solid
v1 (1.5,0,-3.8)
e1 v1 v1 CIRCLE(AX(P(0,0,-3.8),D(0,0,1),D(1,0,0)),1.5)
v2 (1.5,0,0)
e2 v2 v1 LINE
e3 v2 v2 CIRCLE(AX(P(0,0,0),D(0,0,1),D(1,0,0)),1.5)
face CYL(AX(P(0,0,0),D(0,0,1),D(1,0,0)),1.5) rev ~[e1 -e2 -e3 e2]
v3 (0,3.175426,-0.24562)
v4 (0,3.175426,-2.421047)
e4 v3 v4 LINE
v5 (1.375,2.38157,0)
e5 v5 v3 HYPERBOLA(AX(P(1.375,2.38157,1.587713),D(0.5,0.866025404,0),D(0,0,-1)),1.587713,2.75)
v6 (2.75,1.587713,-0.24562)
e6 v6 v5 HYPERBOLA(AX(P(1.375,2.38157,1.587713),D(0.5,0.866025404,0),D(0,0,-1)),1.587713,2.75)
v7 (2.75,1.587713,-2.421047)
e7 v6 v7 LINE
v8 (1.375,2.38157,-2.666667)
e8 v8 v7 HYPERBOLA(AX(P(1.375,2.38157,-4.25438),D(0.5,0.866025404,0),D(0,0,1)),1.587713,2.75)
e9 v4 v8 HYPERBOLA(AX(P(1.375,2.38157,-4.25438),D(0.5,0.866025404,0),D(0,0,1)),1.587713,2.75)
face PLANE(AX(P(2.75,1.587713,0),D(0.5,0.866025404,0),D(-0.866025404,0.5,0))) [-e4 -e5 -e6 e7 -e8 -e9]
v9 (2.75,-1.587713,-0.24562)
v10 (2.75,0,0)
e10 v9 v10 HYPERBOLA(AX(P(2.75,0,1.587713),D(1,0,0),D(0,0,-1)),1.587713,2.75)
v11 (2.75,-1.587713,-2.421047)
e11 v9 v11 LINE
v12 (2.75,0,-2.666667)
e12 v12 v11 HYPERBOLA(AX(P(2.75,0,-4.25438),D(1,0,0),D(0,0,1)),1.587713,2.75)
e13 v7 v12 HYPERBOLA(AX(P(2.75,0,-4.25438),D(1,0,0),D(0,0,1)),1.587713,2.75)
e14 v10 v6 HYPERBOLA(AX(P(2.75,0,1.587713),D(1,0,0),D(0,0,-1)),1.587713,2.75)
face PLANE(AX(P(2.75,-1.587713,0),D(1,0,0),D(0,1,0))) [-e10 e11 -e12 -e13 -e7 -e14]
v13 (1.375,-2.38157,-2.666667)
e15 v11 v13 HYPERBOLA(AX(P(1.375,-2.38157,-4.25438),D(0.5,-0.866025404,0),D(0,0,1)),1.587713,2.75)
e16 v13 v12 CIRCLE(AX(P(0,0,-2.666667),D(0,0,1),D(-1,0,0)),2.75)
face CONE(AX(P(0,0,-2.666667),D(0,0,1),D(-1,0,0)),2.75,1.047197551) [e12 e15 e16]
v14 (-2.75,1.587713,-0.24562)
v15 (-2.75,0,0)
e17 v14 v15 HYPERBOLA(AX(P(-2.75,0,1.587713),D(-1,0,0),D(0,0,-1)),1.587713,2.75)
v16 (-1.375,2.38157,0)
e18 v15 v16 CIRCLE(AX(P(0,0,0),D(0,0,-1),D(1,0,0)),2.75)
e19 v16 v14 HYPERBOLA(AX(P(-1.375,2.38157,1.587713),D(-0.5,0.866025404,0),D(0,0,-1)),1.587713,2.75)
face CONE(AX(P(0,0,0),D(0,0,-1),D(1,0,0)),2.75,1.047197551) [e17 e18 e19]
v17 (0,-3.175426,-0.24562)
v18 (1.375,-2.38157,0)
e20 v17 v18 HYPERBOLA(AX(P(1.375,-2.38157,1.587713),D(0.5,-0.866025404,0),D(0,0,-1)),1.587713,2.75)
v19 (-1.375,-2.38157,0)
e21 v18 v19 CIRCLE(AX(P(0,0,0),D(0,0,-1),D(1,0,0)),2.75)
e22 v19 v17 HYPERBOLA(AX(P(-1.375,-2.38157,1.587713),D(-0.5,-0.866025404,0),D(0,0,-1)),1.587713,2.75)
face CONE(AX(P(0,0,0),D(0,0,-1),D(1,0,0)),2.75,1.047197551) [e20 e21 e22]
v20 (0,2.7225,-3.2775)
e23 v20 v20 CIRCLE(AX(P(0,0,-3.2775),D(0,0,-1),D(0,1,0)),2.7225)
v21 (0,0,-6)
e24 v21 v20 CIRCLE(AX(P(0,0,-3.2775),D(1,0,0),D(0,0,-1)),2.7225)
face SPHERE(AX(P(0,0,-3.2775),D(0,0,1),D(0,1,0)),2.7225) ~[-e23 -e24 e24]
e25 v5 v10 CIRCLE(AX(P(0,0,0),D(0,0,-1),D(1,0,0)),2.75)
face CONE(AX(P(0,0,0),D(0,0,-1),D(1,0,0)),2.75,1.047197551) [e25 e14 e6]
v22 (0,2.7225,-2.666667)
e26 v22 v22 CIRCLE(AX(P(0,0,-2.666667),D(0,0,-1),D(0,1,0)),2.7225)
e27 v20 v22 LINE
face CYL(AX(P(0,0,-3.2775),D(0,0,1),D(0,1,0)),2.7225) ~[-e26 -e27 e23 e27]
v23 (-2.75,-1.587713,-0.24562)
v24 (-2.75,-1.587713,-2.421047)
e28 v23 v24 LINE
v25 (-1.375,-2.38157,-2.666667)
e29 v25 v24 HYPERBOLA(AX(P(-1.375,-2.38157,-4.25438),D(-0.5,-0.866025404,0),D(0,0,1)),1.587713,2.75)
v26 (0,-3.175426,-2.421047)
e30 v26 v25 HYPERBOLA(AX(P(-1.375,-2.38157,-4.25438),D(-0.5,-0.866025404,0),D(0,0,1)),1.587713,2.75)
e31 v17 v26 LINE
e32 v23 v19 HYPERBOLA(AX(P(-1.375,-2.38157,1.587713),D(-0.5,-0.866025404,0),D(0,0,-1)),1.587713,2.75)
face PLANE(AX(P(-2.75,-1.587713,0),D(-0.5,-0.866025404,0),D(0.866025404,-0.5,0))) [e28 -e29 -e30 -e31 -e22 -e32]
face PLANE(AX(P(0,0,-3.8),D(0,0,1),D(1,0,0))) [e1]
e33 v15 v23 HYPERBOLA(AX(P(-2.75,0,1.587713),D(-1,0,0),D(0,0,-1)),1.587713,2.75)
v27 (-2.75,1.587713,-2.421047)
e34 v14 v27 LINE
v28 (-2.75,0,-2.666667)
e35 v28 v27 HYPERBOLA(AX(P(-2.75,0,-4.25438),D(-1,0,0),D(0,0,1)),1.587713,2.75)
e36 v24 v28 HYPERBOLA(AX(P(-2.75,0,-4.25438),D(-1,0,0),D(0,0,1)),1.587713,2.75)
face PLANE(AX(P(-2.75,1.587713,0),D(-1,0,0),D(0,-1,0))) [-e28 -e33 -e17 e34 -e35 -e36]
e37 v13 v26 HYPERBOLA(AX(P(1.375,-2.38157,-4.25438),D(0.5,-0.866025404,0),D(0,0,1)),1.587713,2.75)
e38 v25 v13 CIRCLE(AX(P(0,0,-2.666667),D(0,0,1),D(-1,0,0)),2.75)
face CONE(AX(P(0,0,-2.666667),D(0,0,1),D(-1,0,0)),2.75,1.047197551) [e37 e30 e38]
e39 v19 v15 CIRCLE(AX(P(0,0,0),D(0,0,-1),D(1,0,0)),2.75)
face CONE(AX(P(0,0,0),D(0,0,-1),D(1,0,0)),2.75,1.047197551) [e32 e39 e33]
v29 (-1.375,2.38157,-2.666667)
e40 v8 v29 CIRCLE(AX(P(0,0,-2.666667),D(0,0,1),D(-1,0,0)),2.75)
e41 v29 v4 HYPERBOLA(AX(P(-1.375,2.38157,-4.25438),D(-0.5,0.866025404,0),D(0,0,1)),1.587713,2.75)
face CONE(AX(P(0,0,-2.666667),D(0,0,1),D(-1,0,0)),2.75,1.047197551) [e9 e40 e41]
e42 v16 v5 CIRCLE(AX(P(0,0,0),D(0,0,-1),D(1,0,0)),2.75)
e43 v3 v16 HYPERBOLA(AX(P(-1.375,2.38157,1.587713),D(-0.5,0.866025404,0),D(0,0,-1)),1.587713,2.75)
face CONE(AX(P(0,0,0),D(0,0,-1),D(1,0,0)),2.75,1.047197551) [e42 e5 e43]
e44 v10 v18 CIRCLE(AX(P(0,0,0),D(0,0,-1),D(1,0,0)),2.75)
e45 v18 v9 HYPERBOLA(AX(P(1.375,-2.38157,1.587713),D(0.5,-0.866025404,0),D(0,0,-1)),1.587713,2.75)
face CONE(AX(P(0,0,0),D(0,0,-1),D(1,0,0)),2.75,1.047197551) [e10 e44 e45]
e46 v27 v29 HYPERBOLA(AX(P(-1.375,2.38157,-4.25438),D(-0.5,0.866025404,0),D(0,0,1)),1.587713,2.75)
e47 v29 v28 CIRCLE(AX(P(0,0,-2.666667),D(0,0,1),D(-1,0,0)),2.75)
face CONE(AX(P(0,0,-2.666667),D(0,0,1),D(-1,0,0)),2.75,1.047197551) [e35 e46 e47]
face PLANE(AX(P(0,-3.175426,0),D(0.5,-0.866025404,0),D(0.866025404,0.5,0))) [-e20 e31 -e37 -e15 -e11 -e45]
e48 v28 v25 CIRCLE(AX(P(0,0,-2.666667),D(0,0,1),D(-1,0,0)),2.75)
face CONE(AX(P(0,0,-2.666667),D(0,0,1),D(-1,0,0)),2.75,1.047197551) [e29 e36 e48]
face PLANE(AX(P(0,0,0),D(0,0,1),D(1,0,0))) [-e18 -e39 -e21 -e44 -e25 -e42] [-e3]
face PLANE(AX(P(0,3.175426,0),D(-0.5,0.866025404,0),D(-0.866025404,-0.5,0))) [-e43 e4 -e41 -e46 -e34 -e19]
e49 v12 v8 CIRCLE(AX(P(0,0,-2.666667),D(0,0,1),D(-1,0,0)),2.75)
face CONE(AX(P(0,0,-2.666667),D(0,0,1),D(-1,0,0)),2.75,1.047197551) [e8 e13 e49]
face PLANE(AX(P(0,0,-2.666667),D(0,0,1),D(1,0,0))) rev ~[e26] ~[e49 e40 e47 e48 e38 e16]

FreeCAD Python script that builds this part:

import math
import FreeCAD as App
import Part
import Sketcher
Q = App.Units.Quantity

doc = App.newDocument("Part")
body = doc.addObject("PartDesign::Body", "Body")

# Sketch on XY plane
sketch1 = doc.addObject("Sketcher::SketchObject", "Sketch")
body.addObject(sketch1)
sketch1.AttachmentSupport = (doc.XY_Plane, [""])
sketch1.MapMode = "FlatFace"
sketch1.addGeometry([
    Part.LineSegment(App.Vector(0, 3.175426, 0), App.Vector(-2.75, 1.587713, 0)),  # 0
    Part.LineSegment(App.Vector(-2.75, 1.587713, 0), App.Vector(-2.75, -1.587713, 0)),  # 1
    Part.LineSegment(App.Vector(-2.75, -1.587713, 0), App.Vector(0, -3.175426, 0)),  # 2
    Part.LineSegment(App.Vector(0, -3.175426, 0), App.Vector(2.75, -1.587713, 0)),  # 3
    Part.LineSegment(App.Vector(2.75, -1.587713, 0), App.Vector(2.75, 1.587713, 0)),  # 4
    Part.LineSegment(App.Vector(2.75, 1.587713, 0), App.Vector(0, 3.175426, 0)),  # 5
], False)
sketch1.addConstraint([
    Sketcher.Constraint("Coincident", 0, 2, 1, 1),
    Sketcher.Constraint("Coincident", 1, 2, 2, 1),
    Sketcher.Constraint("Coincident", 2, 2, 3, 1),
    Sketcher.Constraint("Coincident", 3, 2, 4, 1),
    Sketcher.Constraint("Coincident", 4, 2, 5, 1),
    Sketcher.Constraint("Coincident", 5, 2, 0, 1),
    Sketcher.Constraint("Vertical", 1),
    Sketcher.Constraint("Vertical", 4),
    Sketcher.Constraint("Symmetric", 0, 2, 3, 2, -1, 1),
    Sketcher.Constraint("Symmetric", 2, 2, 5, 2, -1, 1),
    Sketcher.Constraint("PointOnObject", 2, 2, -2),
    Sketcher.Constraint("Parallel", 2, 5),
    Sketcher.Constraint("Horizontal", 1, 2, 3, 2),
    Sketcher.Constraint("Angle", 0, Q("-150 deg")),
    Sketcher.Constraint("DistanceX", 1, 2, 3, 2, Q("5.5 mm")),
    Sketcher.Constraint("DistanceY", 1, 2, 1, 1, Q("3.175426 mm")),
])
pad1 = doc.addObject("PartDesign::Pad", "Pad")
body.addObject(pad1)
pad1.Profile = sketch1
pad1.Length = 2.666667
pad1.Reversed = True

# Sketch on XY plane
sketch2 = doc.addObject("Sketcher::SketchObject", "Sketch001")
body.addObject(sketch2)
sketch2.AttachmentSupport = (doc.XY_Plane, [""])
sketch2.MapMode = "FlatFace"
sketch2.addGeometry([
    Part.LineSegment(App.Vector(-10.982, 11.407, 0), App.Vector(-10.982, -11.407, 0)),  # 0
    Part.LineSegment(App.Vector(-10.982, -11.407, 0), App.Vector(10.982, -11.407, 0)),  # 1
    Part.LineSegment(App.Vector(10.982, -11.407, 0), App.Vector(10.982, 11.407, 0)),  # 2
    Part.LineSegment(App.Vector(10.982, 11.407, 0), App.Vector(-10.982, 11.407, 0)),  # 3
    Part.Circle(App.Vector(0, 0, 0), App.Vector(0, 0, 1), 2.75),  # 4
], False)
sketch2.addConstraint([
    Sketcher.Constraint("Coincident", 0, 2, 1, 1),
    Sketcher.Constraint("Coincident", 1, 2, 2, 1),
    Sketcher.Constraint("Coincident", 2, 2, 3, 1),
    Sketcher.Constraint("Coincident", 3, 2, 0, 1),
    Sketcher.Constraint("Vertical", 0),
    Sketcher.Constraint("Horizontal", 1),
    Sketcher.Constraint("Vertical", 2),
    Sketcher.Constraint("Horizontal", 3),
    Sketcher.Constraint("Coincident", 4, 3, -1, 1),
    Sketcher.Constraint("Symmetric", 0, 2, 2, 2, -1, 1),
    Sketcher.Constraint("Diameter", 4, Q("5.5 mm")),
    Sketcher.Constraint("DistanceX", 1, 1, 1, 2, Q("21.964 mm")),
    Sketcher.Constraint("DistanceY", 0, 2, 0, 1, Q("22.814 mm")),
])
pocket1 = doc.addObject("PartDesign::Pocket", "Pocket")
body.addObject(pocket1)
pocket1.Profile = sketch2
pocket1.Length = 3.666667
pocket1.TaperAngle = 60

# Sketch on XY plane
sketch3 = doc.addObject("Sketcher::SketchObject", "Sketch002")
body.addObject(sketch3)
sketch3.AttachmentSupport = (doc.XY_Plane, [""])
sketch3.MapMode = "FlatFace"
sketch3.AttachmentOffset = App.Placement(App.Vector(0, 0, -2.666667), App.Rotation())
sketch3.addGeometry([
    Part.LineSegment(App.Vector(10.982, 11.407, 0), App.Vector(10.982, -11.407, 0)),  # 0
    Part.LineSegment(App.Vector(10.982, -11.407, 0), App.Vector(-10.982, -11.407, 0)),  # 1
    Part.LineSegment(App.Vector(-10.982, -11.407, 0), App.Vector(-10.982, 11.407, 0)),  # 2
    Part.LineSegment(App.Vector(-10.982, 11.407, 0), App.Vector(10.982, 11.407, 0)),  # 3
    Part.Circle(App.Vector(0, 0, 0), App.Vector(0, 0, 1), 2.75),  # 4
], False)
sketch3.addConstraint([
    Sketcher.Constraint("Coincident", 0, 2, 1, 1),
    Sketcher.Constraint("Coincident", 1, 2, 2, 1),
    Sketcher.Constraint("Coincident", 2, 2, 3, 1),
    Sketcher.Constraint("Coincident", 3, 2, 0, 1),
    Sketcher.Constraint("Vertical", 0),
    Sketcher.Constraint("Horizontal", 1),
    Sketcher.Constraint("Vertical", 2),
    Sketcher.Constraint("Horizontal", 3),
    Sketcher.Constraint("Coincident", 4, 3, -1, 1),
    Sketcher.Constraint("Symmetric", 0, 2, 2, 2, -1, 1),
    Sketcher.Constraint("Diameter", 4, Q("5.5 mm")),
    Sketcher.Constraint("DistanceX", 1, 2, 1, 1, Q("21.964 mm")),
    Sketcher.Constraint("DistanceY", 0, 2, 0, 1, Q("22.814 mm")),
])
pocket2 = doc.addObject("PartDesign::Pocket", "Pocket001")
body.addObject(pocket2)
pocket2.Profile = sketch3
pocket2.Length = 3.666667
pocket2.Reversed = True
pocket2.TaperAngle = 60

# Sketch on YZ plane
sketch4 = doc.addObject("Sketcher::SketchObject", "Sketch003")
body.addObject(sketch4)
sketch4.AttachmentSupport = (doc.YZ_Plane, [""])
sketch4.MapMode = "FlatFace"
sketch4.addGeometry([
    Part.LineSegment(App.Vector(2.7225, -2.666667, 0), App.Vector(0, -2.666667, 0)),
    Part.LineSegment(App.Vector(0, -2.666667, 0), App.Vector(0, -6, 0)),
    Part.ArcOfCircle(Part.Circle(App.Vector(0, -3.2775, 0), App.Vector(0, 0, 1), 2.7225), math.radians(-90), math.radians(0)),
    Part.LineSegment(App.Vector(2.7225, -3.2775, 0), App.Vector(2.7225, -2.666667, 0)),
], False)
sketch4.addConstraint([
    Sketcher.Constraint("Coincident", 0, 2, 1, 1),
    Sketcher.Constraint("Coincident", 1, 2, 2, 1),
    Sketcher.Constraint("Tangent", 2, 2, 3, 1),
    Sketcher.Constraint("Coincident", 3, 2, 0, 1),
    Sketcher.Constraint("Horizontal", 0),
    Sketcher.Constraint("Vertical", 1),
    Sketcher.Constraint("Vertical", 3),
    Sketcher.Constraint("PointOnObject", 2, 3, -2),
    Sketcher.Constraint("PointOnObject", 0, 2, -2),
    Sketcher.Constraint("DistanceY", 1, 2, -1, 1, Q("6 mm")),
    Sketcher.Constraint("Radius", 2, Q("2.7225 mm")),
    Sketcher.Constraint("DistanceY", 1, 2, 1, 1, Q("3.333333 mm")),
])
revolution = doc.addObject("PartDesign::Revolution", "Revolution")
body.addObject(revolution)
revolution.Profile = sketch4
revolution.ReferenceAxis = (sketch4, ["V_Axis"])
revolution.Angle = 360

# Sketch on XY plane
sketch5 = doc.addObject("Sketcher::SketchObject", "Sketch004")
body.addObject(sketch5)
sketch5.AttachmentSupport = (doc.XY_Plane, [""])
sketch5.MapMode = "FlatFace"
sketch5.addGeometry(Part.Circle(App.Vector(0, 0, 0), App.Vector(0, 0, 1), 1.5), False)
sketch5.addConstraint([
    Sketcher.Constraint("Coincident", 0, 3, -1, 1),
    Sketcher.Constraint("Diameter", 0, Q("3 mm")),
])
pocket3 = doc.addObject("PartDesign::Pocket", "Pocket002")
body.addObject(pocket3)
pocket3.Profile = sketch5
pocket3.Length = 3.8

doc.recompute()
